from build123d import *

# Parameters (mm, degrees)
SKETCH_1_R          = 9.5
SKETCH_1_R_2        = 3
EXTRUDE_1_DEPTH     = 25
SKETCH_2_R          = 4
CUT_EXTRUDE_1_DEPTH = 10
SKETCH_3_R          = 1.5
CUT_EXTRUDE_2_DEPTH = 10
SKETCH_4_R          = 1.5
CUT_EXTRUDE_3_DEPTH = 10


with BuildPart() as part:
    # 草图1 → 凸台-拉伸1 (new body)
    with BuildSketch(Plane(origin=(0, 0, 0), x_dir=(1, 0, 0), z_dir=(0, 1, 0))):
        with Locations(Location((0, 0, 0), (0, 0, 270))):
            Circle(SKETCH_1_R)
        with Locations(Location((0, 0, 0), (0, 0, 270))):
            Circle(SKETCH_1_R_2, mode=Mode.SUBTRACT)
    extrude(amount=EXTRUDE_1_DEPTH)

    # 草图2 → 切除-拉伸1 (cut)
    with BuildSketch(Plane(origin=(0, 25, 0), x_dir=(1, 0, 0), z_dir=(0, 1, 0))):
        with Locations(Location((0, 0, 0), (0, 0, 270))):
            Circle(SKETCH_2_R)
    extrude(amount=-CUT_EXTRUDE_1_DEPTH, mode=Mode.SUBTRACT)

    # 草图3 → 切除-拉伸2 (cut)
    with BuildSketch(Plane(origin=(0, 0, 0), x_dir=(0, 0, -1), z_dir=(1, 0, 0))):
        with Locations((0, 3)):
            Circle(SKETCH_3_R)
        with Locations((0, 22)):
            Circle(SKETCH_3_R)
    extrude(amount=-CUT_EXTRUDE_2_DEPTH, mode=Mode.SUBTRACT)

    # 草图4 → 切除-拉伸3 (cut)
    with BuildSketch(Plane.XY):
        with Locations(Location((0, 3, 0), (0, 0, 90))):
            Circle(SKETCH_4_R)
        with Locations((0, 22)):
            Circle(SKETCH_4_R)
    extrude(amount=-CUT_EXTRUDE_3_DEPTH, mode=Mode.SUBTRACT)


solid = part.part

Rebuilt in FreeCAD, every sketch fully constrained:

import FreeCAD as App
import Part
import Sketcher

V = App.Vector
Q = App.Units.Quantity

doc = App.newDocument("Part")
body = doc.addObject("PartDesign::Body", "Body")

# Sketch on XZ plane
sketch1 = body.newObject("Sketcher::SketchObject", "Sketch")
sketch1.AttachmentSupport = (doc.getObject("XZ_Plane"), [""])
sketch1.MapMode = "FlatFace"
sketch1.addGeometry(Part.Circle(V(0, 0, 0), V(0, 0, 1), 9.5), False)
sketch1.addGeometry(Part.Circle(V(0, 0, 0), V(0, 0, 1), 3), False)
sketch1.addConstraint(Sketcher.Constraint("Coincident", 0, 3, -1, 1))
sketch1.addConstraint(Sketcher.Constraint("Coincident", 1, 3, -1, 1))
sketch1.addConstraint(Sketcher.Constraint("Diameter", 0, Q("19 mm")))
sketch1.addConstraint(Sketcher.Constraint("Diameter", 1, Q("6 mm")))
pad1 = body.newObject("PartDesign::Pad", "Pad")
pad1.Profile = sketch1
pad1.Length = 25
pad1.Reversed = True

# Sketch on XZ plane
sketch2 = body.newObject("Sketcher::SketchObject", "Sketch001")
sketch2.AttachmentSupport = (doc.getObject("XZ_Plane"), [""])
sketch2.MapMode = "FlatFace"
sketch2.AttachmentOffset = App.Placement(V(0, 0, -25), App.Rotation())
sketch2.addGeometry(Part.Circle(V(0, 0, 0), V(0, 0, 1), 4), False)
sketch2.addConstraint(Sketcher.Constraint("Coincident", 0, 3, -1, 1))
sketch2.addConstraint(Sketcher.Constraint("Diameter", 0, Q("8 mm")))
pocket1 = body.newObject("PartDesign::Pocket", "Pocket")
pocket1.Profile = sketch2
pocket1.Length = 10
pocket1.Reversed = True

# Sketch on YZ plane
sketch3 = body.newObject("Sketcher::SketchObject", "Sketch002")
sketch3.AttachmentSupport = (doc.getObject("YZ_Plane"), [""])
sketch3.MapMode = "FlatFace"
sketch3.addGeometry(Part.Circle(V(3, 0, 0), V(0, 0, 1), 1.5), False)
sketch3.addGeometry(Part.Circle(V(22, 0, 0), V(0, 0, 1), 1.5), False)
sketch3.addConstraint(Sketcher.Constraint("Equal", 0, 1))
sketch3.addConstraint(Sketcher.Constraint("PointOnObject", 0, 3, -1))
sketch3.addConstraint(Sketcher.Constraint("PointOnObject", 1, 3, -1))
sketch3.addConstraint(Sketcher.Constraint("Diameter", 0, Q("3 mm")))
sketch3.addConstraint(Sketcher.Constraint("DistanceX", -1, 1, 0, 3, Q("3 mm")))
sketch3.addConstraint(Sketcher.Constraint("DistanceX", -1, 1, 1, 3, Q("22 mm")))
pocket2 = body.newObject("PartDesign::Pocket", "Pocket001")
pocket2.Profile = sketch3
pocket2.Length = 10

# Sketch on XY plane
sketch4 = body.newObject("Sketcher::SketchObject", "Sketch003")
sketch4.AttachmentSupport = (doc.getObject("XY_Plane"), [""])
sketch4.MapMode = "FlatFace"
sketch4.addGeometry(Part.Circle(V(0, 3, 0), V(0, 0, 1), 1.5), False)
sketch4.addGeometry(Part.Circle(V(0, 22, 0), V(0, 0, 1), 1.5), False)
sketch4.addConstraint(Sketcher.Constraint("Equal", 0, 1))
sketch4.addConstraint(Sketcher.Constraint("PointOnObject", 0, 3, -2))
sketch4.addConstraint(Sketcher.Constraint("PointOnObject", 1, 3, -2))
sketch4.addConstraint(Sketcher.Constraint("Diameter", 0, Q("3 mm")))
sketch4.addConstraint(Sketcher.Constraint("DistanceY", -1, 1, 0, 3, Q("3 mm")))
sketch4.addConstraint(Sketcher.Constraint("DistanceY", -1, 1, 1, 3, Q("22 mm")))
pocket3 = body.newObject("PartDesign::Pocket", "Pocket002")
pocket3.Profile = sketch4
pocket3.Length = 10

doc.recompute()
